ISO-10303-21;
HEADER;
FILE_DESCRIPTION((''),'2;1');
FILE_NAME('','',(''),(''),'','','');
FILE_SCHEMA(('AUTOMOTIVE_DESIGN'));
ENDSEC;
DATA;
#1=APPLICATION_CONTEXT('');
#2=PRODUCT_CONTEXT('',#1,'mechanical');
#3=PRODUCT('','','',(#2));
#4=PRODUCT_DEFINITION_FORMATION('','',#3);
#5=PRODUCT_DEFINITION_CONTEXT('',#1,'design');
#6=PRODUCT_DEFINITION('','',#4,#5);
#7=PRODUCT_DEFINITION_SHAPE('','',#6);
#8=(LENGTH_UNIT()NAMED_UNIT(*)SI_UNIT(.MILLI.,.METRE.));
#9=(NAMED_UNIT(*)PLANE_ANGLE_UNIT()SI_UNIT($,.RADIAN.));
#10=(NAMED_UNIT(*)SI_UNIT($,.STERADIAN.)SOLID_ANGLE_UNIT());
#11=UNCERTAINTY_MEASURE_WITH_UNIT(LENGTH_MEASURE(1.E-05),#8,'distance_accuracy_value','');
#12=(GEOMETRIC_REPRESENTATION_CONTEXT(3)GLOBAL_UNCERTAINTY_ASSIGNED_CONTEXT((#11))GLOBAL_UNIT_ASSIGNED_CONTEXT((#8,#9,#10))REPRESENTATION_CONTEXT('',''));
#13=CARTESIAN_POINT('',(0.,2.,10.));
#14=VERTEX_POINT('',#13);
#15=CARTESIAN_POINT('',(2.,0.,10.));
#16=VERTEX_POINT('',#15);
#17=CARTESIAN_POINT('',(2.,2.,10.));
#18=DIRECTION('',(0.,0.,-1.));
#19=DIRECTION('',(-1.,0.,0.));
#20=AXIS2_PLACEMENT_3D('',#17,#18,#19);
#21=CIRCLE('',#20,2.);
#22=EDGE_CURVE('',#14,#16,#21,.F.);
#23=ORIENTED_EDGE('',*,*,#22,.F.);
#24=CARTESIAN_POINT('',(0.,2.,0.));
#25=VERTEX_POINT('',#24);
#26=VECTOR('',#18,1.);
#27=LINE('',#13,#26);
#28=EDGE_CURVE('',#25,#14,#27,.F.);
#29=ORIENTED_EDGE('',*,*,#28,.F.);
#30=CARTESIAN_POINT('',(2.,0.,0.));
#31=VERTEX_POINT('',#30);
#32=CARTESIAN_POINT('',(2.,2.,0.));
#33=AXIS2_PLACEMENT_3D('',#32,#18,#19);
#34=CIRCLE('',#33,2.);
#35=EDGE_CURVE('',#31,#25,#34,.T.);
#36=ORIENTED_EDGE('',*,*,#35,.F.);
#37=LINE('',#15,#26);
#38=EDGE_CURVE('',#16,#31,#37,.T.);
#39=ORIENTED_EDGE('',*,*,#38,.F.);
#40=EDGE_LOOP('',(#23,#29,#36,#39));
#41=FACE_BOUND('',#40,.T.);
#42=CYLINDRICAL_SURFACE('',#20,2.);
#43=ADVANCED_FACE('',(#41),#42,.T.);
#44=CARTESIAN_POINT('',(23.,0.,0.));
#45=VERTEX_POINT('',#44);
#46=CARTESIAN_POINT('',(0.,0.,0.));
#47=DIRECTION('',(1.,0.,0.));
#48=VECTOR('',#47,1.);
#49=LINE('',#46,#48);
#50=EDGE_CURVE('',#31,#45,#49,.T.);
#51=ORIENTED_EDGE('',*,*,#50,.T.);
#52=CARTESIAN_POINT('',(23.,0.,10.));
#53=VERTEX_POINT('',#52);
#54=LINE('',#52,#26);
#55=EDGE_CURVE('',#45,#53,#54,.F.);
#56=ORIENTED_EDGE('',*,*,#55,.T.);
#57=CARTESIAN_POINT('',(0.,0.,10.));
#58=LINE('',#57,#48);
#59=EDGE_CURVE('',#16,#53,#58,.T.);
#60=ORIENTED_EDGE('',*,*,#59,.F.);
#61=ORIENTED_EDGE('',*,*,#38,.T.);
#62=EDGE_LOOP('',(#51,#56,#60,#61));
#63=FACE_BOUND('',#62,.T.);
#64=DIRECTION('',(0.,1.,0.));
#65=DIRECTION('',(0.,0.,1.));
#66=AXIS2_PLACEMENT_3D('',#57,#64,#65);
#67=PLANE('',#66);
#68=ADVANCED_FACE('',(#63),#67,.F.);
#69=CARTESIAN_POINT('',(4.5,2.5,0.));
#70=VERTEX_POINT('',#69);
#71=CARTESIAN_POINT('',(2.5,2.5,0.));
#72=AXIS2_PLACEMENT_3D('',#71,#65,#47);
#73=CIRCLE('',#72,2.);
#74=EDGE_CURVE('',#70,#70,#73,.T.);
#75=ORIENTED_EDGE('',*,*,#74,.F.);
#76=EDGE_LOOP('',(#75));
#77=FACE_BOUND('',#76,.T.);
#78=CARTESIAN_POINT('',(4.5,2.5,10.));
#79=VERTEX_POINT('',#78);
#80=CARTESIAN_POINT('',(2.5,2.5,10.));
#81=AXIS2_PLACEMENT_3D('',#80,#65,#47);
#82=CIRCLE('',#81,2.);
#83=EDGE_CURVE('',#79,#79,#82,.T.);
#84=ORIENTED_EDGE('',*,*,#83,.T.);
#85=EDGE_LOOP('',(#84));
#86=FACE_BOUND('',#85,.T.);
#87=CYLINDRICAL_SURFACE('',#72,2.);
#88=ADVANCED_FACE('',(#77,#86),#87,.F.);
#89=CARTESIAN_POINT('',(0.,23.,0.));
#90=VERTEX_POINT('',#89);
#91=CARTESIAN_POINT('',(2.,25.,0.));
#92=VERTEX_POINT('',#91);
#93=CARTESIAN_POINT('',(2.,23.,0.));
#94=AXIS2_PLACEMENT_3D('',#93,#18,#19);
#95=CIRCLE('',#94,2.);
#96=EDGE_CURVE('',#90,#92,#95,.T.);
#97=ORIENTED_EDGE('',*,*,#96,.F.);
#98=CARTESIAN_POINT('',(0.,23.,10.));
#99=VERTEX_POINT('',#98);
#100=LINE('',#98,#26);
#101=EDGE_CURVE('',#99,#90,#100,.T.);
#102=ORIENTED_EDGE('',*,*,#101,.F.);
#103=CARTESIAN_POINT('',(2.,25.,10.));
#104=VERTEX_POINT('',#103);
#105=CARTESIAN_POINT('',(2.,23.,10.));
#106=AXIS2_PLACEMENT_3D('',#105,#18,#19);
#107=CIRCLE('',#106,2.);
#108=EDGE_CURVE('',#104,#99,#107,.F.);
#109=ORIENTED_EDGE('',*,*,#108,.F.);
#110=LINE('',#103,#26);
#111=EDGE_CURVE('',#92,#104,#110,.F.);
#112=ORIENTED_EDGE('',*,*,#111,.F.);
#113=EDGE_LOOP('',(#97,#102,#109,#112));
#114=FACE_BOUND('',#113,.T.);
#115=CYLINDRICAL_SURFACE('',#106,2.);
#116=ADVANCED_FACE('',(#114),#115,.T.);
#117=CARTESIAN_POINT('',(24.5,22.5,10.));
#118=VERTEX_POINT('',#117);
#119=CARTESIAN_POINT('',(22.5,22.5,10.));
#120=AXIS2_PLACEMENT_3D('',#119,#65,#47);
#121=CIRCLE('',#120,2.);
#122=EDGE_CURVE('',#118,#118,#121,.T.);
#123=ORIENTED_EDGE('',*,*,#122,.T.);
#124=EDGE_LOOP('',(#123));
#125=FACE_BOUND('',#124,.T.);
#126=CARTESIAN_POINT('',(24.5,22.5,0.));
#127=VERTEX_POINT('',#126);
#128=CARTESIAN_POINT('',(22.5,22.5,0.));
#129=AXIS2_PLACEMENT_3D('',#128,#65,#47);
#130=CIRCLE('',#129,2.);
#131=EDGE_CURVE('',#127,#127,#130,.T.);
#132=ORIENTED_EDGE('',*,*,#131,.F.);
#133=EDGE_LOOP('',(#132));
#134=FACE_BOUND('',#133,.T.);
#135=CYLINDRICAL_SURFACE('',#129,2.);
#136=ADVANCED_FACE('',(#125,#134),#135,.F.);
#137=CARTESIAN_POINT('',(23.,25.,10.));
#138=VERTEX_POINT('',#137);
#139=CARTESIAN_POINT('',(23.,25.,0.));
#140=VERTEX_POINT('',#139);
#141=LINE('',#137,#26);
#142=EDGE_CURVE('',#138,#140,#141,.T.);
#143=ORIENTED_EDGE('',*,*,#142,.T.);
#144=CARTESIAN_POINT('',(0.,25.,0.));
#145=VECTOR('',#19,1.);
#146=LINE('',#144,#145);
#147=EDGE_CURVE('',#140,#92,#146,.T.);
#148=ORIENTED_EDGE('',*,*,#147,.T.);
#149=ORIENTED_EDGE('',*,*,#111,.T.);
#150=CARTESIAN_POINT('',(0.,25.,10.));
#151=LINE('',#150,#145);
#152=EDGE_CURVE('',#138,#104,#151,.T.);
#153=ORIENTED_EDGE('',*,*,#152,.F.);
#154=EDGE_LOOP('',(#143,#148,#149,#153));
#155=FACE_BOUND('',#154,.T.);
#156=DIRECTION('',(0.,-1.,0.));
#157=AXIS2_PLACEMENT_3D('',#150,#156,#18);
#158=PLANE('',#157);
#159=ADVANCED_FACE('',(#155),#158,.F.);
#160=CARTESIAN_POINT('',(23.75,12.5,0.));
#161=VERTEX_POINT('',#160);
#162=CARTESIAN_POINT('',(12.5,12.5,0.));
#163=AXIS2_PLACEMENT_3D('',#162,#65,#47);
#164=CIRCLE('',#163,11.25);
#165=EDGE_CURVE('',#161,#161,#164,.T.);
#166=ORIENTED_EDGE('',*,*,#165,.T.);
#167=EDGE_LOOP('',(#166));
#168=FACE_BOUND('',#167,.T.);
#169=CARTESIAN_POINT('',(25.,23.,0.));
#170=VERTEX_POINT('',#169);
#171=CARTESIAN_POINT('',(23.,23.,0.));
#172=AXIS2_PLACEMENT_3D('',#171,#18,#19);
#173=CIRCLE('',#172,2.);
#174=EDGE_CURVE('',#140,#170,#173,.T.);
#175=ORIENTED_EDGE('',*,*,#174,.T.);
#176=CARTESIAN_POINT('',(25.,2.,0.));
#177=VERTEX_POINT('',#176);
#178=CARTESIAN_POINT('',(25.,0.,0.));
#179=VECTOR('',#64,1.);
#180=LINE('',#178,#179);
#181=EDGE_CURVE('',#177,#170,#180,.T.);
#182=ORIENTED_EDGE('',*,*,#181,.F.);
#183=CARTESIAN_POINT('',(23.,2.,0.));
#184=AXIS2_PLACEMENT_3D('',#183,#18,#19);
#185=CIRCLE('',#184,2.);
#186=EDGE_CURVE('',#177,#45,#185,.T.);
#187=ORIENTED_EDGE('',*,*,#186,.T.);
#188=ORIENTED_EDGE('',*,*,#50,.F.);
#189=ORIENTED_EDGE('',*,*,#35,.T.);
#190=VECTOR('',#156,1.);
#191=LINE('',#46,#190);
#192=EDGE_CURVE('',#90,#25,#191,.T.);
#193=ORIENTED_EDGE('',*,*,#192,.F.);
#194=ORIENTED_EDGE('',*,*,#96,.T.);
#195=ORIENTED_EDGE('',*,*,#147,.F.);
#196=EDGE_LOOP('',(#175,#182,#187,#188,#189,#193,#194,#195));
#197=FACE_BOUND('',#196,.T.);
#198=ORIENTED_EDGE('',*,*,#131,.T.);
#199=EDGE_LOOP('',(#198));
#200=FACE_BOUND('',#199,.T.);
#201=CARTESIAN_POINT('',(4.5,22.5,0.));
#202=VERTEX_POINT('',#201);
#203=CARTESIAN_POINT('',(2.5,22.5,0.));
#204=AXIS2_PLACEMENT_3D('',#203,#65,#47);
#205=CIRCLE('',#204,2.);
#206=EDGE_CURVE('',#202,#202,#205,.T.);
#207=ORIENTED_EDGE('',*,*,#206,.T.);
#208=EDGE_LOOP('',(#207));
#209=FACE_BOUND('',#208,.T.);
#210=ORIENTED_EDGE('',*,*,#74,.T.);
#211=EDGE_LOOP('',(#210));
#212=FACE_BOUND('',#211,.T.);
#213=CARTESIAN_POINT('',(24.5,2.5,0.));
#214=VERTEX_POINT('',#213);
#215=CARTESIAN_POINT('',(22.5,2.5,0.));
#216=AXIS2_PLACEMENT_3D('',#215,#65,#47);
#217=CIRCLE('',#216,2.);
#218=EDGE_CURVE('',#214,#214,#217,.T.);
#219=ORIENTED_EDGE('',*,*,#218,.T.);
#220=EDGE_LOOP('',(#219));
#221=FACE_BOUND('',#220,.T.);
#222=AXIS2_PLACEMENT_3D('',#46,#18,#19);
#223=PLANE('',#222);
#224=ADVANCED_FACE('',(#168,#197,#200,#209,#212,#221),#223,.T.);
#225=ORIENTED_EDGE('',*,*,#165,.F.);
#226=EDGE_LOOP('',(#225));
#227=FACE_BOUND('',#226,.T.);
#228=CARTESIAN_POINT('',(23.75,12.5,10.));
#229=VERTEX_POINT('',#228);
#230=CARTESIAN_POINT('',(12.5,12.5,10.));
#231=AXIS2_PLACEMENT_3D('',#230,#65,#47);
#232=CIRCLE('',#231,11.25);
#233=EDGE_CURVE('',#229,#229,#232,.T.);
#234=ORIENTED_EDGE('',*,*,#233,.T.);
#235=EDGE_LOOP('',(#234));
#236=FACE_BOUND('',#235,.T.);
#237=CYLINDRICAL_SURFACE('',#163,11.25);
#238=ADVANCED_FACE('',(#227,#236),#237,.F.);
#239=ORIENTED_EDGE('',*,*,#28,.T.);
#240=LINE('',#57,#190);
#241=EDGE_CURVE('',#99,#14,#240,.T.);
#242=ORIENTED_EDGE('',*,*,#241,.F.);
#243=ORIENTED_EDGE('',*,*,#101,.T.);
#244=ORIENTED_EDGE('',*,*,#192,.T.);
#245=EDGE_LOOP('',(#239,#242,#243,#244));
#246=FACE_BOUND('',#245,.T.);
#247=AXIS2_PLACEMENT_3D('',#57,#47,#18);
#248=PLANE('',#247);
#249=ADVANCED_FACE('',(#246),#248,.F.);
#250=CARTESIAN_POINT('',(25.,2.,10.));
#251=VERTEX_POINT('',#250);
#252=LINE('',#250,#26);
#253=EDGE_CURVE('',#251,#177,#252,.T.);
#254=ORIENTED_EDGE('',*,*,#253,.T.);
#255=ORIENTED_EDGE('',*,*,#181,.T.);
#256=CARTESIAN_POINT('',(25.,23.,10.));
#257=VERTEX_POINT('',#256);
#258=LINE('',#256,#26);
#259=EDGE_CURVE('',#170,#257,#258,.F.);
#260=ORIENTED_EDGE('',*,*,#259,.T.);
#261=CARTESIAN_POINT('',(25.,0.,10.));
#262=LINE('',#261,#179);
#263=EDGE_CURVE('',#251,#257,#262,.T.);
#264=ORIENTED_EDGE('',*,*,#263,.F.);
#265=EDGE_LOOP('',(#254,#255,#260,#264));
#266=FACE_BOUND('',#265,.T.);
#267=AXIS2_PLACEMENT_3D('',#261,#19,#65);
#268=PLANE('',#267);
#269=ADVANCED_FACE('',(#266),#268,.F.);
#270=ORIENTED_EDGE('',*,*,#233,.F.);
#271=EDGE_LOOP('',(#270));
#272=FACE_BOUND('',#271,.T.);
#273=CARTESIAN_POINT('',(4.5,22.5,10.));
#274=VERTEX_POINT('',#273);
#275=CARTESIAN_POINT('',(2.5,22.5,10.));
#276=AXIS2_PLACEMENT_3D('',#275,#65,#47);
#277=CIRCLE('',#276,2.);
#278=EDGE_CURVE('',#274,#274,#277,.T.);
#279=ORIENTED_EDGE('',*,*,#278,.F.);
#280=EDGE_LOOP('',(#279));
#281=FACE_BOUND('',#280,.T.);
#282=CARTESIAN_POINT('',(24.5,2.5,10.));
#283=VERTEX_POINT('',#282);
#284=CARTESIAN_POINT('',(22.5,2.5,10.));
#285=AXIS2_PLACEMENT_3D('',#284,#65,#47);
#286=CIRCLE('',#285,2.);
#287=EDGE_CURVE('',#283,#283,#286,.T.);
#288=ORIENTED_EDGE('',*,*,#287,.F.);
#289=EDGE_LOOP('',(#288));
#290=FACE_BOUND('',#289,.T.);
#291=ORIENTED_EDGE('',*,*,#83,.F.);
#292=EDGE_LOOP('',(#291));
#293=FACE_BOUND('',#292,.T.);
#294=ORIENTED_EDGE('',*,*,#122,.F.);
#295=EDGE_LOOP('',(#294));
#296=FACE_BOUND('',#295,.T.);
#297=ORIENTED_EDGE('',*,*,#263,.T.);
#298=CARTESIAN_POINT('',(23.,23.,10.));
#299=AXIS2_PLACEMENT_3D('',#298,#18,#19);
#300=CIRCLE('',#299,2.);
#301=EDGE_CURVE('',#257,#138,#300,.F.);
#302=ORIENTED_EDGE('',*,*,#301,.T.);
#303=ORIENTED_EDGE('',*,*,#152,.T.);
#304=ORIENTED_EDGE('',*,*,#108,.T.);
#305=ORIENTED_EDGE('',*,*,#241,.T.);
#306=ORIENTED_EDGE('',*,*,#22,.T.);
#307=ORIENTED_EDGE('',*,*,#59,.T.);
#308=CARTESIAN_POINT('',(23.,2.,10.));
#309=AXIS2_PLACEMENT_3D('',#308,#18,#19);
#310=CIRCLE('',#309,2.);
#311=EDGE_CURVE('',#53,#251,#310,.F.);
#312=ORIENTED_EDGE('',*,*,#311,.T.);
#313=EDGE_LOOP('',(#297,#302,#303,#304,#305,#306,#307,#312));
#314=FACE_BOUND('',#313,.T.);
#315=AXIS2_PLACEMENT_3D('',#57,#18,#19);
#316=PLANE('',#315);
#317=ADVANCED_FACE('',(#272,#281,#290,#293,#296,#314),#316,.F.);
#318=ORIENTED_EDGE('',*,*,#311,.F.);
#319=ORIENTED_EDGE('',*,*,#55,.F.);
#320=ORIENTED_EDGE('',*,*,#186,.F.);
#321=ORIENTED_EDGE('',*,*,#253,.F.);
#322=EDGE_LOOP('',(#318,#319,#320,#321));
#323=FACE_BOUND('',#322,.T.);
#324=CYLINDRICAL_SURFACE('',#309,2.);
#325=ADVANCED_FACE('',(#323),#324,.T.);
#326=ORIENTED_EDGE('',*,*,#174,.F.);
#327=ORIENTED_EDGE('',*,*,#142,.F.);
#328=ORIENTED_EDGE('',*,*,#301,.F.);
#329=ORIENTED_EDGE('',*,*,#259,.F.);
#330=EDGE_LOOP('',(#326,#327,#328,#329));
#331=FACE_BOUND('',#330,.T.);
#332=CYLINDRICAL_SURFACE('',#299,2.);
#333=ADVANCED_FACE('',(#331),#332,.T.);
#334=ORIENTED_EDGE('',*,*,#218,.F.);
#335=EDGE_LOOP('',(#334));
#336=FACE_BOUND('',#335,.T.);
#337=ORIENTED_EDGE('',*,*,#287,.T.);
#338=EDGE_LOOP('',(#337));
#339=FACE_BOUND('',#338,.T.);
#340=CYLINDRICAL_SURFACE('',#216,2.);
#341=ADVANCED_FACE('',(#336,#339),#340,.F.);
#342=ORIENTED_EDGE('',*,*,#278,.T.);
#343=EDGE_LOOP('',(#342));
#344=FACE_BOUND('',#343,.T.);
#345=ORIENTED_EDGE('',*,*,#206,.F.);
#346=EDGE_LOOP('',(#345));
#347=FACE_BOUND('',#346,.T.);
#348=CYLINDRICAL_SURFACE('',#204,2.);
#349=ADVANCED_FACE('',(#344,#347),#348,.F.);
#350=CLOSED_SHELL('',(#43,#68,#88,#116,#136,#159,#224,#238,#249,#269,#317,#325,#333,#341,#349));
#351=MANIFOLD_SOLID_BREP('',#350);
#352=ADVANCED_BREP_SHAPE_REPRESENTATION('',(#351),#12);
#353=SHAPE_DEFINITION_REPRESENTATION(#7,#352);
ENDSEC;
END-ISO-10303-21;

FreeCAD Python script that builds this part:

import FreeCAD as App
import Part
import Sketcher
from FreeCAD import Vector
Q = App.Units.Quantity


def edges_at(feature, points):
    """Names of the edges that pass closest to the given points."""
    edges = feature.Shape.Edges
    near = lambda p: min(range(len(edges)), key=lambda i: edges[i].distToShape(Part.Vertex(*p))[0])
    return sorted({f"Edge{near(p) + 1}" for p in points})

doc = App.newDocument("Part")
body = doc.addObject("PartDesign::Body", "Body")

sketch1 = body.newObject("Sketcher::SketchObject", "Sketch")
sketch1.AttachmentSupport = (doc.getObject("XY_Plane"), [""])
sketch1.MapMode = "FlatFace"
sketch1.addGeometry(Part.LineSegment(Vector(0, 25, 0), Vector(0, 0, 0)), False)
sketch1.addGeometry(Part.LineSegment(Vector(0, 0, 0), Vector(25, 0, 0)), False)
sketch1.addGeometry(Part.LineSegment(Vector(25, 0, 0), Vector(25, 25, 0)), False)
sketch1.addGeometry(Part.LineSegment(Vector(25, 25, 0), Vector(0, 25, 0)), False)
sketch1.addConstraint(Sketcher.Constraint("Coincident", 0, 2, 1, 1))
sketch1.addConstraint(Sketcher.Constraint("Coincident", 1, 2, 2, 1))
sketch1.addConstraint(Sketcher.Constraint("Coincident", 2, 2, 3, 1))
sketch1.addConstraint(Sketcher.Constraint("Coincident", 3, 2, 0, 1))
sketch1.addConstraint(Sketcher.Constraint("Vertical", 0))
sketch1.addConstraint(Sketcher.Constraint("Horizontal", 1))
sketch1.addConstraint(Sketcher.Constraint("Vertical", 2))
sketch1.addConstraint(Sketcher.Constraint("Horizontal", 3))
sketch1.addConstraint(Sketcher.Constraint("Coincident", 0, 2, -1, 1))
sketch1.addConstraint(Sketcher.Constraint("Equal", 3, 0))
sketch1.addConstraint(Sketcher.Constraint("DistanceX", 1, 1, 1, 2, Q("25 mm")))
pad1 = body.newObject("PartDesign::Pad", "Pad")
pad1.Profile = sketch1
pad1.Length = 10

sketch2 = body.newObject("Sketcher::SketchObject", "Sketch001")
sketch2.AttachmentSupport = (doc.getObject("XY_Plane"), [""])
sketch2.MapMode = "FlatFace"
sketch2.AttachmentOffset = App.Placement(Vector(0, 0, 10), App.Rotation())
sketch2.addGeometry(Part.Circle(Vector(12.5, 12.5, 0), Vector(0, 0, 1), 11.25), False)
sketch2.addGeometry(Part.Circle(Vector(2.5, 22.5, 0), Vector(0, 0, 1), 2), False)
sketch2.addGeometry(Part.Circle(Vector(2.5, 2.5, 0), Vector(0, 0, 1), 2), False)
sketch2.addGeometry(Part.Circle(Vector(22.5, 2.5, 0), Vector(0, 0, 1), 2), False)
sketch2.addGeometry(Part.Circle(Vector(22.5, 22.5, 0), Vector(0, 0, 1), 2), False)
sketch2.addConstraint(Sketcher.Constraint("Equal", 1, 2))
sketch2.addConstraint(Sketcher.Constraint("Equal", 2, 3))
sketch2.addConstraint(Sketcher.Constraint("Equal", 3, 4))
sketch2.addConstraint(Sketcher.Constraint("Horizontal", 2, 3, 3, 3))
sketch2.addConstraint(Sketcher.Constraint("Horizontal", 1, 3, 4, 3))
sketch2.addConstraint(Sketcher.Constraint("Vertical", 1, 3, 2, 3))
sketch2.addConstraint(Sketcher.Constraint("Vertical", 3, 3, 4, 3))
sketch2.addConstraint(Sketcher.Constraint("Diameter", 1, Q("4 mm")))
sketch2.addConstraint(Sketcher.Constraint("Diameter", 0, Q("22.5 mm")))
sketch2.addConstraint(Sketcher.Constraint("DistanceX", 1, 3, 0, 3, Q("10 mm")))
sketch2.addConstraint(Sketcher.Constraint("DistanceY", 0, 3, 1, 3, Q("10 mm")))
sketch2.addConstraint(Sketcher.Constraint("DistanceY", 2, 3, 0, 3, Q("10 mm")))
sketch2.addConstraint(Sketcher.Constraint("DistanceX", 0, 3, 3, 3, Q("10 mm")))
sketch2.addConstraint(Sketcher.Constraint("DistanceX", -1, 1, 0, 3, Q("12.5 mm")))
sketch2.addConstraint(Sketcher.Constraint("DistanceY", -1, 1, 0, 3, Q("12.5 mm")))
pocket1 = body.newObject("PartDesign::Pocket", "Pocket")
pocket1.Profile = sketch2
pocket1.Length = 10
doc.recompute()

fillet = body.newObject("PartDesign::Fillet", "Fillet")
fillet.Base = (pocket1, edges_at(pocket1, [
    (0, 25, 5),
    (25, 25, 5),
    (25, 0, 5),
    (0, 0, 5),
]))
fillet.Radius = 2

doc.recompute()
